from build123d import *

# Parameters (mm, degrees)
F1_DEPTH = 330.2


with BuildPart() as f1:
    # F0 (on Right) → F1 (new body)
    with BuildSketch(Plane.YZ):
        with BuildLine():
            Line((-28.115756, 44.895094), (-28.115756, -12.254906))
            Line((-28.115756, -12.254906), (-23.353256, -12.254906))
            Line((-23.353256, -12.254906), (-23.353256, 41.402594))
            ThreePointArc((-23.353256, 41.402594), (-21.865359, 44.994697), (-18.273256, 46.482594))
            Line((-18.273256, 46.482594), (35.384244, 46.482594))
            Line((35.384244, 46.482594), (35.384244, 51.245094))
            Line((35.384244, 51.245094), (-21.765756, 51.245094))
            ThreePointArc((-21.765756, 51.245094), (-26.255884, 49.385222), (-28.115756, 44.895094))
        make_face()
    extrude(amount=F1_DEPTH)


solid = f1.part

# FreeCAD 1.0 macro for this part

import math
import FreeCAD as App
import Part
import Sketcher

V = App.Vector
Q = App.Units.Quantity

doc = App.newDocument("Part")
body = doc.addObject("PartDesign::Body", "Body")

sketch1 = body.newObject("Sketcher::SketchObject", "Sketch")
sketch1.AttachmentSupport = (doc.getObject("YZ_Plane"), [""])
sketch1.MapMode = "FlatFace"
sketch1.addGeometry([
    Part.LineSegment(V(-28.115756, 44.895094, 0), V(-28.115756, -12.254906, 0)),
    Part.LineSegment(V(-28.115756, -12.254906, 0), V(-23.353256, -12.254906, 0)),
    Part.LineSegment(V(-23.353256, -12.254906, 0), V(-23.353256, 41.402594, 0)),
    Part.ArcOfCircle(Part.Circle(V(-18.273258, 41.402596, 0), V(0, 0, 1), 5.079998), math.radians(89.999979), math.radians(180.000021)),
    Part.LineSegment(V(-18.273256, 46.482594, 0), V(35.384244, 46.482594, 0)),
    Part.LineSegment(V(35.384244, 46.482594, 0), V(35.384244, 51.245094, 0)),
    Part.LineSegment(V(35.384244, 51.245094, 0), V(-21.765756, 51.245094, 0)),
    Part.ArcOfCircle(Part.Circle(V(-21.765756, 44.895094, 0), V(0, 0, 1), 6.35), math.radians(90.000002), math.radians(179.999998)),
], False)
sketch1.addConstraint([
    Sketcher.Constraint("Coincident", 0, 2, 1, 1),
    Sketcher.Constraint("Coincident", 1, 2, 2, 1),
    Sketcher.Constraint("Tangent", 2, 2, 3, 2),
    Sketcher.Constraint("Tangent", 3, 1, 4, 1),
    Sketcher.Constraint("Coincident", 4, 2, 5, 1),
    Sketcher.Constraint("Coincident", 5, 2, 6, 1),
    Sketcher.Constraint("Tangent", 6, 2, 7, 1),
    Sketcher.Constraint("Tangent", 7, 2, 0, 1),
    Sketcher.Constraint("Vertical", 0),
    Sketcher.Constraint("Horizontal", 1),
    Sketcher.Constraint("Vertical", 2),
    Sketcher.Constraint("Horizontal", 4),
    Sketcher.Constraint("Vertical", 5),
    Sketcher.Constraint("Horizontal", 6),
    Sketcher.Constraint("Equal", 6, 0),
    Sketcher.Constraint("Equal", 4, 2),
    Sketcher.Constraint("Radius", 3, Q("0.1999999 in")),
    Sketcher.Constraint("Radius", 7, Q("0.25 in")),
    Sketcher.Constraint("DistanceX", 6, 2, 6, 1, Q("2.25 in")),
    Sketcher.Constraint("DistanceX", 1, 1, 1, 2, Q("0.1875 in")),
    Sketcher.Constraint("DistanceX", 3, 3, -1, 1, Q("18.273258 mm")),
    Sketcher.Constraint("DistanceY", -1, 1, 3, 3, Q("41.402596 mm")),
])
pad1 = body.newObject("PartDesign::Pad", "Pad")
pad1.Profile = sketch1
pad1.Length = Q("13 in")

doc.recompute()
